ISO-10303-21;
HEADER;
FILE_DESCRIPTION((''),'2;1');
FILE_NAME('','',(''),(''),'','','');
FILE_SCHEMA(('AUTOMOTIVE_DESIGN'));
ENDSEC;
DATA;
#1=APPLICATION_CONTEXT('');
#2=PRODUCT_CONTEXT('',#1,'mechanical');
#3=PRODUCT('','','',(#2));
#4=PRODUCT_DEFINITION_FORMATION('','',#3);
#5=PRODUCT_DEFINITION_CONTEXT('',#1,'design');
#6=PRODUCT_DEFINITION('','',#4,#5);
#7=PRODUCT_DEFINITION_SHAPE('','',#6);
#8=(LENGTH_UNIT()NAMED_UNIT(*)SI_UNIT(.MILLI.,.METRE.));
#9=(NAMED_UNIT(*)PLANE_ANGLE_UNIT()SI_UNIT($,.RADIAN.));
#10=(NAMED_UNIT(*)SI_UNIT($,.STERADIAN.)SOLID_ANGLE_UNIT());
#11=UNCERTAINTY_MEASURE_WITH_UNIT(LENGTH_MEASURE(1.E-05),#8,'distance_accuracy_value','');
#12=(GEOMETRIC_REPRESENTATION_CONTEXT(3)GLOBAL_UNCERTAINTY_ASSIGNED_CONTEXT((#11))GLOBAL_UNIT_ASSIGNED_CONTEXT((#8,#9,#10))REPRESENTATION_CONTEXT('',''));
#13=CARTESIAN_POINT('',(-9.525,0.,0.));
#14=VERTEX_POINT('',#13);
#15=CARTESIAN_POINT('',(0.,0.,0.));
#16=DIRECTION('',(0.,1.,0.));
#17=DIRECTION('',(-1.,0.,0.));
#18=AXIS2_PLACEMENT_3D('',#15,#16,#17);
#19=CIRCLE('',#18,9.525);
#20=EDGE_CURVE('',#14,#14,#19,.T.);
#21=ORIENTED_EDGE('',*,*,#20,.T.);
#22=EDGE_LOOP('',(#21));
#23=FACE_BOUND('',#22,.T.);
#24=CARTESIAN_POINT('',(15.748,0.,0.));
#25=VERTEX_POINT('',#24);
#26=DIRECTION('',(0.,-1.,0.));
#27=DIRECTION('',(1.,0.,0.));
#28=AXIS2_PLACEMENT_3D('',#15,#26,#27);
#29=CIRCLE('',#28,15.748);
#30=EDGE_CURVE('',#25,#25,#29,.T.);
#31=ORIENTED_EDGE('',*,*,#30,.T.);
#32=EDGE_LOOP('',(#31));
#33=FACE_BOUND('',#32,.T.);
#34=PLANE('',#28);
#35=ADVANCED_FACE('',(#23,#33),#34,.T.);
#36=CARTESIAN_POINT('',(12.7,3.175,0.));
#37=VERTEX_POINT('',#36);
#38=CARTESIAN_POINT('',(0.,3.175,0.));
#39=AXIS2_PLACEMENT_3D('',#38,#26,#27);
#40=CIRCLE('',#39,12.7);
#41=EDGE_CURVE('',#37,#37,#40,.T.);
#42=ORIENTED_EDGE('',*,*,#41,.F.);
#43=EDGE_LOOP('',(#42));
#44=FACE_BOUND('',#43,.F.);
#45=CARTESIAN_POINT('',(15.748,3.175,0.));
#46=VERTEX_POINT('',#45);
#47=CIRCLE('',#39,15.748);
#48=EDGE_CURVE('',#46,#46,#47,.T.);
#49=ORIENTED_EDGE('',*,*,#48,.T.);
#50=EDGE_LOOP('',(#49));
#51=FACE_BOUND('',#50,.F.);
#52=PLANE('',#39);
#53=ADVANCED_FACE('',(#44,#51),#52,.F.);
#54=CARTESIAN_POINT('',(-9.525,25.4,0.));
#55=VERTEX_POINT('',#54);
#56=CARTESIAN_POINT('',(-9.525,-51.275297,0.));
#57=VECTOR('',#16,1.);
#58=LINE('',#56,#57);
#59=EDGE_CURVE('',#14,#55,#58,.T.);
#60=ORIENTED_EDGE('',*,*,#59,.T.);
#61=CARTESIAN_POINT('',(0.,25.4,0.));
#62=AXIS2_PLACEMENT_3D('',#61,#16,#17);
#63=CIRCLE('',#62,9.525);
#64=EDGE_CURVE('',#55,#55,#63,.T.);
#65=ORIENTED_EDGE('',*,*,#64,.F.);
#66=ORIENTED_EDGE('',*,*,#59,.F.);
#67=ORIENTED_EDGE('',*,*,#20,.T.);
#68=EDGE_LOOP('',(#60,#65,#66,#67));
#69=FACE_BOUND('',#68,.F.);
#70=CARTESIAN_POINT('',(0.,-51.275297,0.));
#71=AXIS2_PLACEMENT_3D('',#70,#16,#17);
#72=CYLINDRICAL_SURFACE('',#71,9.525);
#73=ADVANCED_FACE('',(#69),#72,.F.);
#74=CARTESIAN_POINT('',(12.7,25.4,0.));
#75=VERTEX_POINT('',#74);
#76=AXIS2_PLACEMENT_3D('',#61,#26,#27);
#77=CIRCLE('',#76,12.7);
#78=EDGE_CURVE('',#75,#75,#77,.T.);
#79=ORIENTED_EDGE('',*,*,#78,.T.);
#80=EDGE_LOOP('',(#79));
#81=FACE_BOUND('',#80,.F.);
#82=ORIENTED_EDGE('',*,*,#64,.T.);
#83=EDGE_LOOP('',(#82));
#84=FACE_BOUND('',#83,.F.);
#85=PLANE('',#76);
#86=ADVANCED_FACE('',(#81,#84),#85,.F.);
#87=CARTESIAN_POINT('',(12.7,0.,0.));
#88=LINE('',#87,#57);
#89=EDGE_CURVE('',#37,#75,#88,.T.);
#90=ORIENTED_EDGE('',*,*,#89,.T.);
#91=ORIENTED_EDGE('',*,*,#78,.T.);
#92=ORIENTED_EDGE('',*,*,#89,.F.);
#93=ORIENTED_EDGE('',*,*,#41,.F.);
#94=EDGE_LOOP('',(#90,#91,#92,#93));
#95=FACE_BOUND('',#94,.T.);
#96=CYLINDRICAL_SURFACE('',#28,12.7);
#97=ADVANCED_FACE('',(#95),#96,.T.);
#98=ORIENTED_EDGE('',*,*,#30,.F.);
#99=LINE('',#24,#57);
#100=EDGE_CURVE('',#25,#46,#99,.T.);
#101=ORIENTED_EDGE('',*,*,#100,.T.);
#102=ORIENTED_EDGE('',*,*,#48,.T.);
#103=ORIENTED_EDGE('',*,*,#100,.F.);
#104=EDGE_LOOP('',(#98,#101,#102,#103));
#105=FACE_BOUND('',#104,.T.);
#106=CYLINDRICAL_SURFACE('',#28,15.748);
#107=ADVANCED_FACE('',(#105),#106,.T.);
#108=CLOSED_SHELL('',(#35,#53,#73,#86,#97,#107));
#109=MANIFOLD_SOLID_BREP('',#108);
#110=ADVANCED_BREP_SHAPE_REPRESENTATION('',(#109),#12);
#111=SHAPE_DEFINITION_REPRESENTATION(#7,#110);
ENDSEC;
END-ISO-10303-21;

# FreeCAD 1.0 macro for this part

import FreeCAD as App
import Part
import Sketcher

V = App.Vector
Q = App.Units.Quantity

doc = App.newDocument("Part")
body = doc.addObject("PartDesign::Body", "Body")

# Sketch on XZ plane
sketch1 = doc.addObject("Sketcher::SketchObject", "Sketch")
body.addObject(sketch1)
sketch1.AttachmentSupport = (doc.XZ_Plane, [""])
sketch1.MapMode = "FlatFace"
sketch1.addGeometry(Part.Circle(V(0, 0, 0), V(0, 0, 1), 16), False)
sketch1.addConstraint([
    Sketcher.Constraint("Coincident", 0, 3, -1, 1),
    Sketcher.Constraint("Diameter", 0, Q("1.24 in")),
])
pad1 = doc.addObject("PartDesign::Pad", "Pad")
body.addObject(pad1)
pad1.Profile = sketch1
pad1.Length = Q("0.125 in")
pad1.Reversed = True

# Sketch on XZ plane
sketch2 = doc.addObject("Sketcher::SketchObject", "Sketch001")
body.addObject(sketch2)
sketch2.AttachmentSupport = (doc.XZ_Plane, [""])
sketch2.MapMode = "FlatFace"
sketch2.addGeometry(Part.Circle(V(0, 0, 0), V(0, 0, 1), 13), False)
sketch2.addConstraint([
    Sketcher.Constraint("Coincident", 0, 3, -1, 1),
    Sketcher.Constraint("Diameter", 0, Q("1 in")),
])
pad2 = doc.addObject("PartDesign::Pad", "Pad001")
body.addObject(pad2)
pad2.Profile = sketch2
pad2.Length = Q("1 in")
pad2.Reversed = True

# Sketch on XZ plane
sketch3 = doc.addObject("Sketcher::SketchObject", "Sketch002")
body.addObject(sketch3)
sketch3.AttachmentSupport = (doc.XZ_Plane, [""])
sketch3.MapMode = "FlatFace"
sketch3.addGeometry(Part.Circle(V(0, 0, 0), V(0, 0, 1), 10), False)
sketch3.addConstraint([
    Sketcher.Constraint("Coincident", 0, 3, -1, 1),
    Sketcher.Constraint("Diameter", 0, Q("0.75 in")),
])
doc.recompute()
hole = doc.addObject("PartDesign::Hole", "Hole")
body.addObject(hole)
hole.Profile = sketch3
hole.ThreadType = "None"
hole.Diameter = Q("0.75 in")
hole.DepthType = "ThroughAll"

doc.recompute()
